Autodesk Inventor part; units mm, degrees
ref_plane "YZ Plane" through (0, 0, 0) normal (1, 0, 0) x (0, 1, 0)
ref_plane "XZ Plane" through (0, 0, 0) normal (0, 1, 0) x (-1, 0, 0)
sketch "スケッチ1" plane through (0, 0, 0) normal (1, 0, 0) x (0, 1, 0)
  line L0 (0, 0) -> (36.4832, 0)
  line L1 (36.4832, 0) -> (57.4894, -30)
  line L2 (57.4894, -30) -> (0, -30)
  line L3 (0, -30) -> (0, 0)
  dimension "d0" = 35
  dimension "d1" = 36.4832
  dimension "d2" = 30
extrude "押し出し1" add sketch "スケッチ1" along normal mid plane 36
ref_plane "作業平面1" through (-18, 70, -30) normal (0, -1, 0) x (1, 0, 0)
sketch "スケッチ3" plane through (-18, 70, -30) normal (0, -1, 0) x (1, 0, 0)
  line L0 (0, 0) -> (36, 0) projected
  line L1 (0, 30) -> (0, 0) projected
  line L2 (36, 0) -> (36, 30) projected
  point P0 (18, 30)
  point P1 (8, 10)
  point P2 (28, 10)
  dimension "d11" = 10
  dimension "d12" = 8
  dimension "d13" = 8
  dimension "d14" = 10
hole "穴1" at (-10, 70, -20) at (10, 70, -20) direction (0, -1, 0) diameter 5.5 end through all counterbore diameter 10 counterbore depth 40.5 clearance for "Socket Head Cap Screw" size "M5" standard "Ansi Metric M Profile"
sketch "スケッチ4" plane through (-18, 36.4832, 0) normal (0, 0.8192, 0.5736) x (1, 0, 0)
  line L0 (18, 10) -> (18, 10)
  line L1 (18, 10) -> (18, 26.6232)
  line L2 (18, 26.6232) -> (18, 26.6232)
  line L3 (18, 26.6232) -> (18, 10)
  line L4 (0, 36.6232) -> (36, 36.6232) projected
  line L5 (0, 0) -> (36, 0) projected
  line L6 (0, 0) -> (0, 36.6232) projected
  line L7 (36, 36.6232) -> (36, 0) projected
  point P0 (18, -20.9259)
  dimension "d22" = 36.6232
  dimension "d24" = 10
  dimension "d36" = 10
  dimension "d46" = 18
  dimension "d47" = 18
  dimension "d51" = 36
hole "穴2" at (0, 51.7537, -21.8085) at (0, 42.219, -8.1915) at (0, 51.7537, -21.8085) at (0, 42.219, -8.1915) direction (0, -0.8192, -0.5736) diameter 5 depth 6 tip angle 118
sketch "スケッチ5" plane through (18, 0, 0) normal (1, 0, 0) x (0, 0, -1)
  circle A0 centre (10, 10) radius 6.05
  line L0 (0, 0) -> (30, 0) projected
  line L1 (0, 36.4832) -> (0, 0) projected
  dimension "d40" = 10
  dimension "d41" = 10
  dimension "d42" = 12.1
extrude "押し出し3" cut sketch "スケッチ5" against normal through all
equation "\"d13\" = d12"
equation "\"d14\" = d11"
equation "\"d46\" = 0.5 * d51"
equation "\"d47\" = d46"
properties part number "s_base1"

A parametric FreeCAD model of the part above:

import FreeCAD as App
import Part
import Sketcher
Q = App.Units.Quantity

doc = App.newDocument("Part")
body = doc.addObject("PartDesign::Body", "Body")

# Sketch on YZ plane
sketch1 = doc.addObject("Sketcher::SketchObject", "Sketch")
body.addObject(sketch1)
sketch1.AttachmentSupport = (doc.YZ_Plane, [""])
sketch1.MapMode = "FlatFace"
sketch1.addGeometry(Part.LineSegment(App.Vector(36.4832, 0, 0), App.Vector(0, 0, 0)), False)
sketch1.addGeometry(Part.LineSegment(App.Vector(0, 0, 0), App.Vector(0, -30, 0)), False)
sketch1.addGeometry(Part.LineSegment(App.Vector(0, -30, 0), App.Vector(57.4894, -30, 0)), False)
sketch1.addGeometry(Part.LineSegment(App.Vector(57.4894, -30, 0), App.Vector(36.4832, 0, 0)), False)
sketch1.addConstraint(Sketcher.Constraint("Coincident", 0, 2, 1, 1))
sketch1.addConstraint(Sketcher.Constraint("Coincident", 1, 2, 2, 1))
sketch1.addConstraint(Sketcher.Constraint("Coincident", 2, 2, 3, 1))
sketch1.addConstraint(Sketcher.Constraint("Coincident", 3, 2, 0, 1))
sketch1.addConstraint(Sketcher.Constraint("Horizontal", 0))
sketch1.addConstraint(Sketcher.Constraint("Vertical", 1))
sketch1.addConstraint(Sketcher.Constraint("Horizontal", 2))
sketch1.addConstraint(Sketcher.Constraint("Coincident", 0, 2, -1, 1))
sketch1.addConstraint(Sketcher.Constraint("DistanceY", 1, 2, 1, 1, 30.0))
sketch1.addConstraint(Sketcher.Constraint("Angle", 3, Q("125 deg")))
sketch1.addConstraint(Sketcher.Constraint("DistanceX", 0, 2, 0, 1, 36.4832))
pad1 = doc.addObject("PartDesign::Pad", "Pad")
body.addObject(pad1)
pad1.Profile = sketch1
pad1.Length = 36
pad1.Midplane = True

# Sketch on XZ plane
sketch2 = doc.addObject("Sketcher::SketchObject", "Sketch001")
body.addObject(sketch2)
sketch2.AttachmentSupport = (doc.XZ_Plane, [""])
sketch2.MapMode = "FlatFace"
sketch2.AttachmentOffset = App.Placement(App.Vector(0, 0, -70), App.Rotation())
sketch2.addGeometry(Part.Circle(App.Vector(-10, -20, 0), App.Vector(0, 0, 1), 2.75), False)
sketch2.addGeometry(Part.Circle(App.Vector(10, -20, 0), App.Vector(0, 0, 1), 2.75), False)
sketch2.addConstraint(Sketcher.Constraint("Equal", 0, 1))
sketch2.addConstraint(Sketcher.Constraint("Symmetric", 0, 3, 1, 3, -2))
sketch2.addConstraint(Sketcher.Constraint("Diameter", 0, 5.5))
sketch2.addConstraint(Sketcher.Constraint("DistanceX", 0, 3, -1, 1, 10.0))
sketch2.addConstraint(Sketcher.Constraint("DistanceY", 0, 3, -1, 1, 20.0))
doc.recompute()
hole = doc.addObject("PartDesign::Hole", "Hole")
body.addObject(hole)
hole.Profile = sketch2
hole.ThreadType = "None"
hole.Diameter = 5.5
hole.DepthType = "ThroughAll"
hole.HoleCutType = "Counterbore"
hole.HoleCutDiameter = 10
hole.HoleCutDepth = 40.5
hole.Reversed = True

# Sketch on an angled plane
sketch3 = doc.addObject("Sketcher::SketchObject", "Sketch002")
body.addObject(sketch3)
sketch3.Placement = App.Placement(App.Vector(0, 24.480611, 17.141508), App.Rotation(App.Vector(0, -0.573576436, 0.819152044), App.Vector(0.999999999, 0, 0), App.Vector(0, 0.819152044, 0.573576436), "ZXY"))
sketch3.addGeometry(Part.Circle(App.Vector(-47.54918, 0, 0), App.Vector(0, 0, 1), 2.5), False)
sketch3.addGeometry(Part.Circle(App.Vector(-30.925908, 0, 0), App.Vector(0, 0, 1), 2.5), False)
sketch3.addGeometry(Part.Circle(App.Vector(-47.54918, 0, 0), App.Vector(0, 0, 1), 2.5), False)
sketch3.addGeometry(Part.Circle(App.Vector(-30.925908, 0, 0), App.Vector(0, 0, 1), 2.5), False)
sketch3.addConstraint(Sketcher.Constraint("Coincident", 2, 3, 0, 3))
sketch3.addConstraint(Sketcher.Constraint("Coincident", 3, 3, 1, 3))
sketch3.addConstraint(Sketcher.Constraint("Equal", 0, 1))
sketch3.addConstraint(Sketcher.Constraint("Equal", 1, 2))
sketch3.addConstraint(Sketcher.Constraint("Equal", 2, 3))
sketch3.addConstraint(Sketcher.Constraint("PointOnObject", 0, 3, -1))
sketch3.addConstraint(Sketcher.Constraint("PointOnObject", 1, 3, -1))
sketch3.addConstraint(Sketcher.Constraint("Diameter", 0, 5.0))
sketch3.addConstraint(Sketcher.Constraint("DistanceX", 1, 3, -1, 1, 30.926))
sketch3.addConstraint(Sketcher.Constraint("DistanceX", 0, 3, -1, 1, 47.5492))
doc.recompute()
hole2 = doc.addObject("PartDesign::Hole", "Hole001")
body.addObject(hole2)
hole2.Profile = sketch3
hole2.ThreadType = "None"
hole2.Diameter = 5
hole2.DepthType = "Dimension"
hole2.Depth = 6
hole2.DrillPoint = "Angled"
hole2.DrillPointAngle = 118

# Sketch on YZ plane
sketch4 = doc.addObject("Sketcher::SketchObject", "Sketch003")
body.addObject(sketch4)
sketch4.AttachmentSupport = (doc.YZ_Plane, [""])
sketch4.MapMode = "FlatFace"
sketch4.AttachmentOffset = App.Placement(App.Vector(0, 0, 18), App.Rotation())
sketch4.addGeometry(Part.Circle(App.Vector(10, -10, 0), App.Vector(0, 0, 1), 6.05), False)
sketch4.addConstraint(Sketcher.Constraint("Diameter", 0, 12.1))
sketch4.addConstraint(Sketcher.Constraint("DistanceX", -1, 1, 0, 3, 10.0))
sketch4.addConstraint(Sketcher.Constraint("DistanceY", 0, 3, -1, 1, 10.0))
pocket1 = doc.addObject("PartDesign::Pocket", "Pocket")
body.addObject(pocket1)
pocket1.Profile = sketch4
pocket1.Type = "ThroughAll"

doc.recompute()
